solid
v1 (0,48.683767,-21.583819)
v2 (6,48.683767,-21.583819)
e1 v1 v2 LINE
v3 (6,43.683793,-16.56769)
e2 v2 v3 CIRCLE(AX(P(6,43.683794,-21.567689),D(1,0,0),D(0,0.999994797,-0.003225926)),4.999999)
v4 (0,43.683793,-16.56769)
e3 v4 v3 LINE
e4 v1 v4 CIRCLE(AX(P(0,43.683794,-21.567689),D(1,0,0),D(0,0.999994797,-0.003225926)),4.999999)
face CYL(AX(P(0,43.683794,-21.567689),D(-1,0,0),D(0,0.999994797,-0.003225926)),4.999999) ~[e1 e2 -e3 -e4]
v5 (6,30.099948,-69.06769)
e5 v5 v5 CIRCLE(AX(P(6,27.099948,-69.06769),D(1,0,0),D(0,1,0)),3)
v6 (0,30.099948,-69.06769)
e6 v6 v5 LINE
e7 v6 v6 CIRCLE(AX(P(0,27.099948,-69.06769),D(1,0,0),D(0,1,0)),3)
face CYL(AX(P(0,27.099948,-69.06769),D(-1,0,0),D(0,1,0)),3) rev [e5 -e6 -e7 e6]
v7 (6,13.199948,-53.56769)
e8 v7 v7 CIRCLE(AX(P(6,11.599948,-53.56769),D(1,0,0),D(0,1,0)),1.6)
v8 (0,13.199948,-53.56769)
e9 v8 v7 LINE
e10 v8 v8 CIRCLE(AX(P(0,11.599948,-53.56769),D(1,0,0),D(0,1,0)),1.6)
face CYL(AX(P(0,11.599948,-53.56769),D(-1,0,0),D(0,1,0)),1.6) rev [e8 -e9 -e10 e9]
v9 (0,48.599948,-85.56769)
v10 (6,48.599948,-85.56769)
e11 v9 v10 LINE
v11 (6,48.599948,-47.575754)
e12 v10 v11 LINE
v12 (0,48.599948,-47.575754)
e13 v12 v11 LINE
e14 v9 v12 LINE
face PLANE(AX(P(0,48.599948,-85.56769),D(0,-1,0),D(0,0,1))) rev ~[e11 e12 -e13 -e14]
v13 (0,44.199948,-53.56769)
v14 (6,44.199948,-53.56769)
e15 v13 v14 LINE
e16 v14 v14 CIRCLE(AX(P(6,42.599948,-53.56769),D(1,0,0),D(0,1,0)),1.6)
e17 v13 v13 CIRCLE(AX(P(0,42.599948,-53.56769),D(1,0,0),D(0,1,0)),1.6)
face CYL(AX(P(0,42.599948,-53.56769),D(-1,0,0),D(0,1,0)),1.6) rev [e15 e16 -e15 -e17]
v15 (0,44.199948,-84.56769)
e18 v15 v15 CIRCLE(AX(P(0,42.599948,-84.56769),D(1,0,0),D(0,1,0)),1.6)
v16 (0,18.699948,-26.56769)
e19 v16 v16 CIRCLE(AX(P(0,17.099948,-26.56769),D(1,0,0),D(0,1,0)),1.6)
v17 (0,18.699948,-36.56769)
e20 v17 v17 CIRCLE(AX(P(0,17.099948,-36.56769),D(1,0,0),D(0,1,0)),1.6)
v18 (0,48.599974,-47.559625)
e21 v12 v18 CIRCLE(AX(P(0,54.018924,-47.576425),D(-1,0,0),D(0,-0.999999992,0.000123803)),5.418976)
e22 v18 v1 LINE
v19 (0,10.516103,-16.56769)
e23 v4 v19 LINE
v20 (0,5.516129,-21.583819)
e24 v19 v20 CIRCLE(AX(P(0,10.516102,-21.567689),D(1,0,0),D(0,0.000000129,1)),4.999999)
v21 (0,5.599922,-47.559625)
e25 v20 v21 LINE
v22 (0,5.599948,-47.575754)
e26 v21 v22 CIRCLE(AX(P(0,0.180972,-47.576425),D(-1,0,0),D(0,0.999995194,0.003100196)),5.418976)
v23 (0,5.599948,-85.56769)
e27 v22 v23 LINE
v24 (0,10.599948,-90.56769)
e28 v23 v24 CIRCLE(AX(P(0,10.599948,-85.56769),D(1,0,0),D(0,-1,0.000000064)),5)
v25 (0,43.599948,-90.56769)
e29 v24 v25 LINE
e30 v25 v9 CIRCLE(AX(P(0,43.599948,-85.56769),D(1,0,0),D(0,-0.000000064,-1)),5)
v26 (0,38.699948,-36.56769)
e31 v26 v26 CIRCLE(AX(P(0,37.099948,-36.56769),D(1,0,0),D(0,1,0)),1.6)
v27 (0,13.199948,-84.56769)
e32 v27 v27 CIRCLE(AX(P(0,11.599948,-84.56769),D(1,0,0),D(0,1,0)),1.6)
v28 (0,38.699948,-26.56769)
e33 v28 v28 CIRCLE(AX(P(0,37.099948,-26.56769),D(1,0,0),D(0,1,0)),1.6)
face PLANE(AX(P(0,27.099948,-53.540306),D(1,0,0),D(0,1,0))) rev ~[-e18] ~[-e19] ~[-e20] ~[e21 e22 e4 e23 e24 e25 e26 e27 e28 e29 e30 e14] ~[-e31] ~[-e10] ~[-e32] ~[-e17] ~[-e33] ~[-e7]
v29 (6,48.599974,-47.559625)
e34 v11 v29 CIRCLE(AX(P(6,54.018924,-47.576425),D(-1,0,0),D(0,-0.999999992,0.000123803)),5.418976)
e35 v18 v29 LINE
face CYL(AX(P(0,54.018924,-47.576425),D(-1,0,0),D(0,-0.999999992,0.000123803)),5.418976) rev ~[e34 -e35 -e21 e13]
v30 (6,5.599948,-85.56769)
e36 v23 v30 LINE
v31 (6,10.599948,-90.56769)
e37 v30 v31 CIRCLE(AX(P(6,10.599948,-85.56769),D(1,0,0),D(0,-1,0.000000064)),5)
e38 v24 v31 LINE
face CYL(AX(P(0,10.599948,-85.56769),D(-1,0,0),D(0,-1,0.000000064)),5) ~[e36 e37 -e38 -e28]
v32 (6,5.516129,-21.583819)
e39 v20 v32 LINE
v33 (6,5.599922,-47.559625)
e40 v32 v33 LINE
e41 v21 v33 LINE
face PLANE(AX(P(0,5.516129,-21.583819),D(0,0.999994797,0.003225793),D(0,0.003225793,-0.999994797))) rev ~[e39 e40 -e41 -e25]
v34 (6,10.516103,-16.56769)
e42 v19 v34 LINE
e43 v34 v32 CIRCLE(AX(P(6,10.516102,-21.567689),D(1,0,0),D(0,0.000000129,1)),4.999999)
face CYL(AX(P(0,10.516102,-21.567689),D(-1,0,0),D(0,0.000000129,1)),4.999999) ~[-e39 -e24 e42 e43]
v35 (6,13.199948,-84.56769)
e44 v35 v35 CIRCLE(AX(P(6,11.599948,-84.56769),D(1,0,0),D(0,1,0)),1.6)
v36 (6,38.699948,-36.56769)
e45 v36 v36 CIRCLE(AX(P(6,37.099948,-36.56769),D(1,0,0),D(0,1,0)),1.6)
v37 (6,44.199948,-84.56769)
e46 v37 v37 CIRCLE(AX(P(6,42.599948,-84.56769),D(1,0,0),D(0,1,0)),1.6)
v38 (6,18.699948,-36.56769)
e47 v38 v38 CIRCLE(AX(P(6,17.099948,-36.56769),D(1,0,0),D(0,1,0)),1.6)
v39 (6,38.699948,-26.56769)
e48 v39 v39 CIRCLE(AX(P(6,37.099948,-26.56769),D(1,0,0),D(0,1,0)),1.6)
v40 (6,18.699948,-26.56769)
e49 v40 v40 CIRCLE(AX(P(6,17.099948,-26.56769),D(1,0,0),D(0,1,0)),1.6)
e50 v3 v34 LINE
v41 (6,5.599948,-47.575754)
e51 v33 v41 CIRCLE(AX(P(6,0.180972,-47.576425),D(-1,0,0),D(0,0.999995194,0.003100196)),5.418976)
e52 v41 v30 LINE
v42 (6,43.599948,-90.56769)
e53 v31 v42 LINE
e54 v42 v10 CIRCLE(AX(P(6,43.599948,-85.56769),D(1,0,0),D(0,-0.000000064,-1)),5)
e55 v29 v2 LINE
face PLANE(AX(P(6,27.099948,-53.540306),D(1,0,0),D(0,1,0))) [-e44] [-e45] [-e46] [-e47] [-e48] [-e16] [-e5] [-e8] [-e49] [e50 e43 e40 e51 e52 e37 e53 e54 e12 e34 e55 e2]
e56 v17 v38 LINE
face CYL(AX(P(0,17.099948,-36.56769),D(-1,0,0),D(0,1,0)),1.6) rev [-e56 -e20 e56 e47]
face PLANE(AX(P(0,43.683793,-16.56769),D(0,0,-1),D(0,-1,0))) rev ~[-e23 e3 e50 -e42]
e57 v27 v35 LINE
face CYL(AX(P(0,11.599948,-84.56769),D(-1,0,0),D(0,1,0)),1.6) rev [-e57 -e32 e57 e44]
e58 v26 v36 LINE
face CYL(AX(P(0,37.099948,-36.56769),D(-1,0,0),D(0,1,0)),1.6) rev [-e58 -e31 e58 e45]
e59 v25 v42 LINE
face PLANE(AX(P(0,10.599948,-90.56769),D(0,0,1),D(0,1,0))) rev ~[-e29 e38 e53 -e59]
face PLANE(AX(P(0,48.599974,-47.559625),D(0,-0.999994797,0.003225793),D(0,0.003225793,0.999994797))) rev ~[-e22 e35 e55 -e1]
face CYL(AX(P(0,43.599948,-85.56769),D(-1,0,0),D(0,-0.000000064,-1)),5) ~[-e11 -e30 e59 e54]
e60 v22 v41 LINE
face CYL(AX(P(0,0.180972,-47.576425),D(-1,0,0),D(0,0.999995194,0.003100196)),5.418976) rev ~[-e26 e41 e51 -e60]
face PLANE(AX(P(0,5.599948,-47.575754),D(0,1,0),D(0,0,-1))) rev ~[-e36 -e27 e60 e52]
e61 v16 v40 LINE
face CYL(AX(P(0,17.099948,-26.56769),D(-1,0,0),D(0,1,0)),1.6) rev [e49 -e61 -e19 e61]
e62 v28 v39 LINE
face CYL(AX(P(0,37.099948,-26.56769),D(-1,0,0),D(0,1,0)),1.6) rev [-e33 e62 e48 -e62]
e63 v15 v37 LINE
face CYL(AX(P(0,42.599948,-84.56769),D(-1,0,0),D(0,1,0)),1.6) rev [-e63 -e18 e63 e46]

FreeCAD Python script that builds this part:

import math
import FreeCAD as App
import Part
import Sketcher

V = App.Vector
Q = App.Units.Quantity

doc = App.newDocument("Part")
body = doc.addObject("PartDesign::Body", "Body")

# Sketch on YZ plane
sketch1 = doc.addObject("Sketcher::SketchObject", "Sketch")
body.addObject(sketch1)
sketch1.AttachmentSupport = (doc.YZ_Plane, [""])
sketch1.MapMode = "FlatFace"
sketch1.addGeometry([
    Part.LineSegment(V(5.6, -47.576, 0), V(5.6, -85.568, 0)),  # 0
    Part.ArcOfCircle(Part.Circle(V(10.6, -85.568, 0), V(0, 0, 1), 5), math.radians(180), math.radians(270)),  # 1
    Part.LineSegment(V(10.6, -90.568, 0), V(43.6, -90.568, 0)),  # 2
    Part.ArcOfCircle(Part.Circle(V(43.6, -85.568, 0), V(0, 0, 1), 5), math.radians(-90), math.radians(0)),  # 3
    Part.LineSegment(V(48.6, -85.568, 0), V(48.6, -47.576, 0)),  # 4
    Part.ArcOfCircle(Part.Circle(V(54.019, -47.576, 0), V(0, 0, 1), 5.419), math.radians(179.82), math.radians(179.99)),  # 5
    Part.LineSegment(V(48.6, -47.56, 0), V(48.684, -21.584, 0)),  # 6
    Part.ArcOfCircle(Part.Circle(V(43.684, -21.568, 0), V(0, 0, 1), 5), math.radians(0), math.radians(90)),  # 7
    Part.LineSegment(V(43.684, -16.568, 0), V(10.516, -16.568, 0)),  # 8
    Part.ArcOfCircle(Part.Circle(V(10.516, -21.568, 0), V(0, 0, 1), 5), math.radians(90), math.radians(180)),  # 9
    Part.LineSegment(V(5.516, -21.584, 0), V(5.6, -47.56, 0)),  # 10
    Part.ArcOfCircle(Part.Circle(V(0.181, -47.576, 0), V(0, 0, 1), 5.419), math.radians(0.01), math.radians(0.18)),  # 11
    Part.Circle(V(11.6, -84.568, 0), V(0, 0, 1), 1.6),  # 12
    Part.Circle(V(42.6, -84.568, 0), V(0, 0, 1), 1.6),  # 13
    Part.Circle(V(27.1, -69.068, 0), V(0, 0, 1), 3),  # 14
    Part.Circle(V(11.6, -53.568, 0), V(0, 0, 1), 1.6),  # 15
    Part.Circle(V(17.1, -36.568, 0), V(0, 0, 1), 1.6),  # 16
    Part.Circle(V(17.1, -26.568, 0), V(0, 0, 1), 1.6),  # 17
    Part.Circle(V(42.6, -53.568, 0), V(0, 0, 1), 1.6),  # 18
    Part.Circle(V(37.1, -36.568, 0), V(0, 0, 1), 1.6),  # 19
    Part.Circle(V(37.1, -26.568, 0), V(0, 0, 1), 1.6),  # 20
], False)
sketch1.addConstraint([
    Sketcher.Constraint("Tangent", 0, 2, 1, 1),
    Sketcher.Constraint("Tangent", 1, 2, 2, 1),
    Sketcher.Constraint("Tangent", 2, 2, 3, 1),
    Sketcher.Constraint("Tangent", 3, 2, 4, 1),
    Sketcher.Constraint("Coincident", 4, 2, 5, 2),
    Sketcher.Constraint("Coincident", 5, 1, 6, 1),
    Sketcher.Constraint("Tangent", 6, 2, 7, 1),
    Sketcher.Constraint("Tangent", 7, 2, 8, 1),
    Sketcher.Constraint("Tangent", 8, 2, 9, 1),
    Sketcher.Constraint("Tangent", 9, 2, 10, 1),
    Sketcher.Constraint("Coincident", 10, 2, 11, 2),
    Sketcher.Constraint("Coincident", 11, 1, 0, 1),
    Sketcher.Constraint("Vertical", 0),
    Sketcher.Constraint("Horizontal", 2),
    Sketcher.Constraint("Vertical", 4),
    Sketcher.Constraint("Horizontal", 8),
    Sketcher.Constraint("Equal", 1, 3),
    Sketcher.Constraint("Equal", 3, 7),
    Sketcher.Constraint("Equal", 7, 9),
    Sketcher.Constraint("Equal", 5, 11),
    Sketcher.Constraint("Equal", 12, 13),
    Sketcher.Constraint("Equal", 13, 15),
    Sketcher.Constraint("Equal", 15, 16),
    Sketcher.Constraint("Equal", 16, 17),
    Sketcher.Constraint("Equal", 17, 18),
    Sketcher.Constraint("Equal", 18, 19),
    Sketcher.Constraint("Equal", 19, 20),
    Sketcher.Constraint("Horizontal", 5, 3, 11, 3),
    Sketcher.Constraint("Horizontal", 12, 3, 13, 3),
    Sketcher.Constraint("Horizontal", 15, 3, 18, 3),
    Sketcher.Constraint("Horizontal", 16, 3, 19, 3),
    Sketcher.Constraint("Horizontal", 17, 3, 20, 3),
    Sketcher.Constraint("Horizontal", 6, 2, 9, 2),
    Sketcher.Constraint("Horizontal", 5, 1, 10, 2),
    Sketcher.Constraint("Horizontal", 4, 2, 11, 1),
    Sketcher.Constraint("Vertical", 12, 3, 15, 3),
    Sketcher.Constraint("Vertical", 16, 3, 17, 3),
    Sketcher.Constraint("Vertical", 13, 3, 18, 3),
    Sketcher.Constraint("Vertical", 19, 3, 20, 3),
    Sketcher.Constraint("Diameter", 14, Q("6 mm")),
    Sketcher.Constraint("Radius", 1, Q("5 mm")),
    Sketcher.Constraint("Diameter", 12, Q("3.2 mm")),
    Sketcher.Constraint("DistanceX", 2, 1, 2, 2, Q("33 mm")),
    Sketcher.Constraint("DistanceY", 3, 3, 7, 3, Q("64.000001 mm")),
    Sketcher.Constraint("DistanceX", 1, 3, 12, 3, Q("1 mm")),
    Sketcher.Constraint("DistanceY", 1, 3, 12, 3, Q("1 mm")),
    Sketcher.Constraint("DistanceX", 13, 3, 3, 3, Q("1 mm")),
    Sketcher.Constraint("DistanceY", 12, 3, 15, 3, Q("31 mm")),
    Sketcher.Constraint("DistanceY", 16, 3, 9, 3, Q("15.000001 mm")),
    Sketcher.Constraint("DistanceX", 16, 3, 14, 3, Q("10 mm")),
    Sketcher.Constraint("DistanceY", 17, 3, 9, 3, Q("5.000001 mm")),
    Sketcher.Constraint("DistanceX", 16, 3, 19, 3, Q("20 mm")),
    Sketcher.Constraint("DistanceX", 14, 3, 13, 3, Q("15.5 mm")),
    Sketcher.Constraint("DistanceY", 13, 3, 14, 3, Q("15.5 mm")),
    Sketcher.Constraint("Radius", 5, Q("5.418976 mm")),
    Sketcher.Constraint("DistanceX", 8, 2, 8, 1, Q("33.16769 mm")),
    Sketcher.Constraint("DistanceY", 5, 3, 5, 1, Q("0.0168 mm")),
    Sketcher.Constraint("Distance", 6, Q("25.975941 mm")),
    Sketcher.Constraint("DistanceY", 0, 2, 0, 1, Q("37.991936 mm")),
    Sketcher.Constraint("DistanceY", 1, 3, -1, 1, Q("85.56769 mm")),
    Sketcher.Constraint("DistanceX", -1, 1, 3, 3, Q("43.599948 mm")),
])
pad1 = doc.addObject("PartDesign::Pad", "Pad")
body.addObject(pad1)
pad1.Profile = sketch1
pad1.Length = 6

doc.recompute()
